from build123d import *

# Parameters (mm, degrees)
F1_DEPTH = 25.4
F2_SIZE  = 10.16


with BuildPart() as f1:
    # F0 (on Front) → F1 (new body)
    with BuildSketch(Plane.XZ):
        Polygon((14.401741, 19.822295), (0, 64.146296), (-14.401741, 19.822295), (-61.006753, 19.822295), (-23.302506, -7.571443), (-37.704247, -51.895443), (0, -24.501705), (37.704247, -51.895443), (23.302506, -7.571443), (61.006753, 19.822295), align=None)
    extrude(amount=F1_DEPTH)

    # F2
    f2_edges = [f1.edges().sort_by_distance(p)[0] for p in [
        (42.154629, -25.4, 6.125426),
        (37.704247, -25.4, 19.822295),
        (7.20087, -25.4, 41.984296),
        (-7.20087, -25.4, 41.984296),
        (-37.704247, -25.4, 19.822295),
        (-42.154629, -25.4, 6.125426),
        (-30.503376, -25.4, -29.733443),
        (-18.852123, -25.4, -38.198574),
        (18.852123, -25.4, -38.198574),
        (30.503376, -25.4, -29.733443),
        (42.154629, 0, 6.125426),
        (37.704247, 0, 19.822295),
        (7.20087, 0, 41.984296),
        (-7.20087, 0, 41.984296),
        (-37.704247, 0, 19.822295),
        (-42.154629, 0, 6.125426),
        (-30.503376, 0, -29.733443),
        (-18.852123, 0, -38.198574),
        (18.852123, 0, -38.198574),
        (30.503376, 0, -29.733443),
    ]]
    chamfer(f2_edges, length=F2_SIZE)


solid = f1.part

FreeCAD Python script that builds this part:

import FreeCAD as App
import Part
import Sketcher
Q = App.Units.Quantity


def edges_at(feature, points):
    """Names of the edges that pass closest to the given points."""
    edges = feature.Shape.Edges
    near = lambda p: min(range(len(edges)), key=lambda i: edges[i].distToShape(Part.Vertex(*p))[0])
    return sorted({f"Edge{near(p) + 1}" for p in points})


def add_polygon(sketch, points):
    """Adds a closed chain of lines whose ends are joined by coincident constraints."""
    first, n = sketch.GeometryCount, len(points)
    for a, b in zip(points, points[1:] + points[:1]):
        sketch.addGeometry(Part.LineSegment(App.Vector(*a, 0), App.Vector(*b, 0)), False)
    for i in range(n):
        sketch.addConstraint(Sketcher.Constraint("Coincident", first + i, 2, first + (i + 1) % n, 1))

doc = App.newDocument("Part")
body = doc.addObject("PartDesign::Body", "Body")

sketch1 = body.newObject("Sketcher::SketchObject", "Sketch")
sketch1.AttachmentSupport = (doc.getObject("XZ_Plane"), [""])
sketch1.MapMode = "FlatFace"
add_polygon(sketch1, [(14, 20), (0, 64), (-14, 20), (-61, 20), (-23, -8), (-38, -52), (0, -25), (38, -52), (23, -8), (61, 20)])
sketch1.addConstraint(Sketcher.Constraint("Horizontal", 2))
sketch1.addConstraint(Sketcher.Constraint("Horizontal", 9))
sketch1.addConstraint(Sketcher.Constraint("Symmetric", 4, 2, 6, 2, -2))
sketch1.addConstraint(Sketcher.Constraint("Symmetric", 3, 2, 7, 2, -2))
sketch1.addConstraint(Sketcher.Constraint("Symmetric", 2, 2, 8, 2, -2))
sketch1.addConstraint(Sketcher.Constraint("PointOnObject", 0, 2, -2))
sketch1.addConstraint(Sketcher.Constraint("PointOnObject", 5, 2, -2))
sketch1.addConstraint(Sketcher.Constraint("Parallel", 1, 4))
sketch1.addConstraint(Sketcher.Constraint("Parallel", 3, 6))
sketch1.addConstraint(Sketcher.Constraint("Parallel", 0, 7))
sketch1.addConstraint(Sketcher.Constraint("Equal", 1, 3))
sketch1.addConstraint(Sketcher.Constraint("Equal", 3, 4))
sketch1.addConstraint(Sketcher.Constraint("Equal", 4, 5))
sketch1.addConstraint(Sketcher.Constraint("Angle", 0, Q("108 deg")))
sketch1.addConstraint(Sketcher.Constraint("Angle", 3, Q("-35.999999 deg")))
sketch1.addConstraint(Sketcher.Constraint("DistanceY", 1, 2, 0, 2, 44.324001))
sketch1.addConstraint(Sketcher.Constraint("DistanceY", -1, 1, 0, 2, 64.146296))
pad1 = body.newObject("PartDesign::Pad", "Pad")
pad1.Profile = sketch1
pad1.Length = Q("1 in")
doc.recompute()

chamfer = body.newObject("PartDesign::Chamfer", "Chamfer")
chamfer.Base = (pad1, edges_at(pad1, [
    (42.155, -25.4, 6.125),
    (37.704, -25.4, 19.822),
    (7.201, -25.4, 41.984),
    (-7.201, -25.4, 41.984),
    (-37.704, -25.4, 19.822),
    (-42.155, -25.4, 6.125),
    (-30.503, -25.4, -29.733),
    (-18.852, -25.4, -38.199),
    (18.852, -25.4, -38.199),
    (30.503, -25.4, -29.733),
    (42.155, 0, 6.125),
    (37.704, 0, 19.822),
    (7.201, 0, 41.984),
    (-7.201, 0, 41.984),
    (-37.704, 0, 19.822),
    (-42.155, 0, 6.125),
    (-30.503, 0, -29.733),
    (-18.852, 0, -38.199),
    (18.852, 0, -38.199),
    (30.503, 0, -29.733),
]))
chamfer.Size = Q("0.4 in")

doc.recompute()
